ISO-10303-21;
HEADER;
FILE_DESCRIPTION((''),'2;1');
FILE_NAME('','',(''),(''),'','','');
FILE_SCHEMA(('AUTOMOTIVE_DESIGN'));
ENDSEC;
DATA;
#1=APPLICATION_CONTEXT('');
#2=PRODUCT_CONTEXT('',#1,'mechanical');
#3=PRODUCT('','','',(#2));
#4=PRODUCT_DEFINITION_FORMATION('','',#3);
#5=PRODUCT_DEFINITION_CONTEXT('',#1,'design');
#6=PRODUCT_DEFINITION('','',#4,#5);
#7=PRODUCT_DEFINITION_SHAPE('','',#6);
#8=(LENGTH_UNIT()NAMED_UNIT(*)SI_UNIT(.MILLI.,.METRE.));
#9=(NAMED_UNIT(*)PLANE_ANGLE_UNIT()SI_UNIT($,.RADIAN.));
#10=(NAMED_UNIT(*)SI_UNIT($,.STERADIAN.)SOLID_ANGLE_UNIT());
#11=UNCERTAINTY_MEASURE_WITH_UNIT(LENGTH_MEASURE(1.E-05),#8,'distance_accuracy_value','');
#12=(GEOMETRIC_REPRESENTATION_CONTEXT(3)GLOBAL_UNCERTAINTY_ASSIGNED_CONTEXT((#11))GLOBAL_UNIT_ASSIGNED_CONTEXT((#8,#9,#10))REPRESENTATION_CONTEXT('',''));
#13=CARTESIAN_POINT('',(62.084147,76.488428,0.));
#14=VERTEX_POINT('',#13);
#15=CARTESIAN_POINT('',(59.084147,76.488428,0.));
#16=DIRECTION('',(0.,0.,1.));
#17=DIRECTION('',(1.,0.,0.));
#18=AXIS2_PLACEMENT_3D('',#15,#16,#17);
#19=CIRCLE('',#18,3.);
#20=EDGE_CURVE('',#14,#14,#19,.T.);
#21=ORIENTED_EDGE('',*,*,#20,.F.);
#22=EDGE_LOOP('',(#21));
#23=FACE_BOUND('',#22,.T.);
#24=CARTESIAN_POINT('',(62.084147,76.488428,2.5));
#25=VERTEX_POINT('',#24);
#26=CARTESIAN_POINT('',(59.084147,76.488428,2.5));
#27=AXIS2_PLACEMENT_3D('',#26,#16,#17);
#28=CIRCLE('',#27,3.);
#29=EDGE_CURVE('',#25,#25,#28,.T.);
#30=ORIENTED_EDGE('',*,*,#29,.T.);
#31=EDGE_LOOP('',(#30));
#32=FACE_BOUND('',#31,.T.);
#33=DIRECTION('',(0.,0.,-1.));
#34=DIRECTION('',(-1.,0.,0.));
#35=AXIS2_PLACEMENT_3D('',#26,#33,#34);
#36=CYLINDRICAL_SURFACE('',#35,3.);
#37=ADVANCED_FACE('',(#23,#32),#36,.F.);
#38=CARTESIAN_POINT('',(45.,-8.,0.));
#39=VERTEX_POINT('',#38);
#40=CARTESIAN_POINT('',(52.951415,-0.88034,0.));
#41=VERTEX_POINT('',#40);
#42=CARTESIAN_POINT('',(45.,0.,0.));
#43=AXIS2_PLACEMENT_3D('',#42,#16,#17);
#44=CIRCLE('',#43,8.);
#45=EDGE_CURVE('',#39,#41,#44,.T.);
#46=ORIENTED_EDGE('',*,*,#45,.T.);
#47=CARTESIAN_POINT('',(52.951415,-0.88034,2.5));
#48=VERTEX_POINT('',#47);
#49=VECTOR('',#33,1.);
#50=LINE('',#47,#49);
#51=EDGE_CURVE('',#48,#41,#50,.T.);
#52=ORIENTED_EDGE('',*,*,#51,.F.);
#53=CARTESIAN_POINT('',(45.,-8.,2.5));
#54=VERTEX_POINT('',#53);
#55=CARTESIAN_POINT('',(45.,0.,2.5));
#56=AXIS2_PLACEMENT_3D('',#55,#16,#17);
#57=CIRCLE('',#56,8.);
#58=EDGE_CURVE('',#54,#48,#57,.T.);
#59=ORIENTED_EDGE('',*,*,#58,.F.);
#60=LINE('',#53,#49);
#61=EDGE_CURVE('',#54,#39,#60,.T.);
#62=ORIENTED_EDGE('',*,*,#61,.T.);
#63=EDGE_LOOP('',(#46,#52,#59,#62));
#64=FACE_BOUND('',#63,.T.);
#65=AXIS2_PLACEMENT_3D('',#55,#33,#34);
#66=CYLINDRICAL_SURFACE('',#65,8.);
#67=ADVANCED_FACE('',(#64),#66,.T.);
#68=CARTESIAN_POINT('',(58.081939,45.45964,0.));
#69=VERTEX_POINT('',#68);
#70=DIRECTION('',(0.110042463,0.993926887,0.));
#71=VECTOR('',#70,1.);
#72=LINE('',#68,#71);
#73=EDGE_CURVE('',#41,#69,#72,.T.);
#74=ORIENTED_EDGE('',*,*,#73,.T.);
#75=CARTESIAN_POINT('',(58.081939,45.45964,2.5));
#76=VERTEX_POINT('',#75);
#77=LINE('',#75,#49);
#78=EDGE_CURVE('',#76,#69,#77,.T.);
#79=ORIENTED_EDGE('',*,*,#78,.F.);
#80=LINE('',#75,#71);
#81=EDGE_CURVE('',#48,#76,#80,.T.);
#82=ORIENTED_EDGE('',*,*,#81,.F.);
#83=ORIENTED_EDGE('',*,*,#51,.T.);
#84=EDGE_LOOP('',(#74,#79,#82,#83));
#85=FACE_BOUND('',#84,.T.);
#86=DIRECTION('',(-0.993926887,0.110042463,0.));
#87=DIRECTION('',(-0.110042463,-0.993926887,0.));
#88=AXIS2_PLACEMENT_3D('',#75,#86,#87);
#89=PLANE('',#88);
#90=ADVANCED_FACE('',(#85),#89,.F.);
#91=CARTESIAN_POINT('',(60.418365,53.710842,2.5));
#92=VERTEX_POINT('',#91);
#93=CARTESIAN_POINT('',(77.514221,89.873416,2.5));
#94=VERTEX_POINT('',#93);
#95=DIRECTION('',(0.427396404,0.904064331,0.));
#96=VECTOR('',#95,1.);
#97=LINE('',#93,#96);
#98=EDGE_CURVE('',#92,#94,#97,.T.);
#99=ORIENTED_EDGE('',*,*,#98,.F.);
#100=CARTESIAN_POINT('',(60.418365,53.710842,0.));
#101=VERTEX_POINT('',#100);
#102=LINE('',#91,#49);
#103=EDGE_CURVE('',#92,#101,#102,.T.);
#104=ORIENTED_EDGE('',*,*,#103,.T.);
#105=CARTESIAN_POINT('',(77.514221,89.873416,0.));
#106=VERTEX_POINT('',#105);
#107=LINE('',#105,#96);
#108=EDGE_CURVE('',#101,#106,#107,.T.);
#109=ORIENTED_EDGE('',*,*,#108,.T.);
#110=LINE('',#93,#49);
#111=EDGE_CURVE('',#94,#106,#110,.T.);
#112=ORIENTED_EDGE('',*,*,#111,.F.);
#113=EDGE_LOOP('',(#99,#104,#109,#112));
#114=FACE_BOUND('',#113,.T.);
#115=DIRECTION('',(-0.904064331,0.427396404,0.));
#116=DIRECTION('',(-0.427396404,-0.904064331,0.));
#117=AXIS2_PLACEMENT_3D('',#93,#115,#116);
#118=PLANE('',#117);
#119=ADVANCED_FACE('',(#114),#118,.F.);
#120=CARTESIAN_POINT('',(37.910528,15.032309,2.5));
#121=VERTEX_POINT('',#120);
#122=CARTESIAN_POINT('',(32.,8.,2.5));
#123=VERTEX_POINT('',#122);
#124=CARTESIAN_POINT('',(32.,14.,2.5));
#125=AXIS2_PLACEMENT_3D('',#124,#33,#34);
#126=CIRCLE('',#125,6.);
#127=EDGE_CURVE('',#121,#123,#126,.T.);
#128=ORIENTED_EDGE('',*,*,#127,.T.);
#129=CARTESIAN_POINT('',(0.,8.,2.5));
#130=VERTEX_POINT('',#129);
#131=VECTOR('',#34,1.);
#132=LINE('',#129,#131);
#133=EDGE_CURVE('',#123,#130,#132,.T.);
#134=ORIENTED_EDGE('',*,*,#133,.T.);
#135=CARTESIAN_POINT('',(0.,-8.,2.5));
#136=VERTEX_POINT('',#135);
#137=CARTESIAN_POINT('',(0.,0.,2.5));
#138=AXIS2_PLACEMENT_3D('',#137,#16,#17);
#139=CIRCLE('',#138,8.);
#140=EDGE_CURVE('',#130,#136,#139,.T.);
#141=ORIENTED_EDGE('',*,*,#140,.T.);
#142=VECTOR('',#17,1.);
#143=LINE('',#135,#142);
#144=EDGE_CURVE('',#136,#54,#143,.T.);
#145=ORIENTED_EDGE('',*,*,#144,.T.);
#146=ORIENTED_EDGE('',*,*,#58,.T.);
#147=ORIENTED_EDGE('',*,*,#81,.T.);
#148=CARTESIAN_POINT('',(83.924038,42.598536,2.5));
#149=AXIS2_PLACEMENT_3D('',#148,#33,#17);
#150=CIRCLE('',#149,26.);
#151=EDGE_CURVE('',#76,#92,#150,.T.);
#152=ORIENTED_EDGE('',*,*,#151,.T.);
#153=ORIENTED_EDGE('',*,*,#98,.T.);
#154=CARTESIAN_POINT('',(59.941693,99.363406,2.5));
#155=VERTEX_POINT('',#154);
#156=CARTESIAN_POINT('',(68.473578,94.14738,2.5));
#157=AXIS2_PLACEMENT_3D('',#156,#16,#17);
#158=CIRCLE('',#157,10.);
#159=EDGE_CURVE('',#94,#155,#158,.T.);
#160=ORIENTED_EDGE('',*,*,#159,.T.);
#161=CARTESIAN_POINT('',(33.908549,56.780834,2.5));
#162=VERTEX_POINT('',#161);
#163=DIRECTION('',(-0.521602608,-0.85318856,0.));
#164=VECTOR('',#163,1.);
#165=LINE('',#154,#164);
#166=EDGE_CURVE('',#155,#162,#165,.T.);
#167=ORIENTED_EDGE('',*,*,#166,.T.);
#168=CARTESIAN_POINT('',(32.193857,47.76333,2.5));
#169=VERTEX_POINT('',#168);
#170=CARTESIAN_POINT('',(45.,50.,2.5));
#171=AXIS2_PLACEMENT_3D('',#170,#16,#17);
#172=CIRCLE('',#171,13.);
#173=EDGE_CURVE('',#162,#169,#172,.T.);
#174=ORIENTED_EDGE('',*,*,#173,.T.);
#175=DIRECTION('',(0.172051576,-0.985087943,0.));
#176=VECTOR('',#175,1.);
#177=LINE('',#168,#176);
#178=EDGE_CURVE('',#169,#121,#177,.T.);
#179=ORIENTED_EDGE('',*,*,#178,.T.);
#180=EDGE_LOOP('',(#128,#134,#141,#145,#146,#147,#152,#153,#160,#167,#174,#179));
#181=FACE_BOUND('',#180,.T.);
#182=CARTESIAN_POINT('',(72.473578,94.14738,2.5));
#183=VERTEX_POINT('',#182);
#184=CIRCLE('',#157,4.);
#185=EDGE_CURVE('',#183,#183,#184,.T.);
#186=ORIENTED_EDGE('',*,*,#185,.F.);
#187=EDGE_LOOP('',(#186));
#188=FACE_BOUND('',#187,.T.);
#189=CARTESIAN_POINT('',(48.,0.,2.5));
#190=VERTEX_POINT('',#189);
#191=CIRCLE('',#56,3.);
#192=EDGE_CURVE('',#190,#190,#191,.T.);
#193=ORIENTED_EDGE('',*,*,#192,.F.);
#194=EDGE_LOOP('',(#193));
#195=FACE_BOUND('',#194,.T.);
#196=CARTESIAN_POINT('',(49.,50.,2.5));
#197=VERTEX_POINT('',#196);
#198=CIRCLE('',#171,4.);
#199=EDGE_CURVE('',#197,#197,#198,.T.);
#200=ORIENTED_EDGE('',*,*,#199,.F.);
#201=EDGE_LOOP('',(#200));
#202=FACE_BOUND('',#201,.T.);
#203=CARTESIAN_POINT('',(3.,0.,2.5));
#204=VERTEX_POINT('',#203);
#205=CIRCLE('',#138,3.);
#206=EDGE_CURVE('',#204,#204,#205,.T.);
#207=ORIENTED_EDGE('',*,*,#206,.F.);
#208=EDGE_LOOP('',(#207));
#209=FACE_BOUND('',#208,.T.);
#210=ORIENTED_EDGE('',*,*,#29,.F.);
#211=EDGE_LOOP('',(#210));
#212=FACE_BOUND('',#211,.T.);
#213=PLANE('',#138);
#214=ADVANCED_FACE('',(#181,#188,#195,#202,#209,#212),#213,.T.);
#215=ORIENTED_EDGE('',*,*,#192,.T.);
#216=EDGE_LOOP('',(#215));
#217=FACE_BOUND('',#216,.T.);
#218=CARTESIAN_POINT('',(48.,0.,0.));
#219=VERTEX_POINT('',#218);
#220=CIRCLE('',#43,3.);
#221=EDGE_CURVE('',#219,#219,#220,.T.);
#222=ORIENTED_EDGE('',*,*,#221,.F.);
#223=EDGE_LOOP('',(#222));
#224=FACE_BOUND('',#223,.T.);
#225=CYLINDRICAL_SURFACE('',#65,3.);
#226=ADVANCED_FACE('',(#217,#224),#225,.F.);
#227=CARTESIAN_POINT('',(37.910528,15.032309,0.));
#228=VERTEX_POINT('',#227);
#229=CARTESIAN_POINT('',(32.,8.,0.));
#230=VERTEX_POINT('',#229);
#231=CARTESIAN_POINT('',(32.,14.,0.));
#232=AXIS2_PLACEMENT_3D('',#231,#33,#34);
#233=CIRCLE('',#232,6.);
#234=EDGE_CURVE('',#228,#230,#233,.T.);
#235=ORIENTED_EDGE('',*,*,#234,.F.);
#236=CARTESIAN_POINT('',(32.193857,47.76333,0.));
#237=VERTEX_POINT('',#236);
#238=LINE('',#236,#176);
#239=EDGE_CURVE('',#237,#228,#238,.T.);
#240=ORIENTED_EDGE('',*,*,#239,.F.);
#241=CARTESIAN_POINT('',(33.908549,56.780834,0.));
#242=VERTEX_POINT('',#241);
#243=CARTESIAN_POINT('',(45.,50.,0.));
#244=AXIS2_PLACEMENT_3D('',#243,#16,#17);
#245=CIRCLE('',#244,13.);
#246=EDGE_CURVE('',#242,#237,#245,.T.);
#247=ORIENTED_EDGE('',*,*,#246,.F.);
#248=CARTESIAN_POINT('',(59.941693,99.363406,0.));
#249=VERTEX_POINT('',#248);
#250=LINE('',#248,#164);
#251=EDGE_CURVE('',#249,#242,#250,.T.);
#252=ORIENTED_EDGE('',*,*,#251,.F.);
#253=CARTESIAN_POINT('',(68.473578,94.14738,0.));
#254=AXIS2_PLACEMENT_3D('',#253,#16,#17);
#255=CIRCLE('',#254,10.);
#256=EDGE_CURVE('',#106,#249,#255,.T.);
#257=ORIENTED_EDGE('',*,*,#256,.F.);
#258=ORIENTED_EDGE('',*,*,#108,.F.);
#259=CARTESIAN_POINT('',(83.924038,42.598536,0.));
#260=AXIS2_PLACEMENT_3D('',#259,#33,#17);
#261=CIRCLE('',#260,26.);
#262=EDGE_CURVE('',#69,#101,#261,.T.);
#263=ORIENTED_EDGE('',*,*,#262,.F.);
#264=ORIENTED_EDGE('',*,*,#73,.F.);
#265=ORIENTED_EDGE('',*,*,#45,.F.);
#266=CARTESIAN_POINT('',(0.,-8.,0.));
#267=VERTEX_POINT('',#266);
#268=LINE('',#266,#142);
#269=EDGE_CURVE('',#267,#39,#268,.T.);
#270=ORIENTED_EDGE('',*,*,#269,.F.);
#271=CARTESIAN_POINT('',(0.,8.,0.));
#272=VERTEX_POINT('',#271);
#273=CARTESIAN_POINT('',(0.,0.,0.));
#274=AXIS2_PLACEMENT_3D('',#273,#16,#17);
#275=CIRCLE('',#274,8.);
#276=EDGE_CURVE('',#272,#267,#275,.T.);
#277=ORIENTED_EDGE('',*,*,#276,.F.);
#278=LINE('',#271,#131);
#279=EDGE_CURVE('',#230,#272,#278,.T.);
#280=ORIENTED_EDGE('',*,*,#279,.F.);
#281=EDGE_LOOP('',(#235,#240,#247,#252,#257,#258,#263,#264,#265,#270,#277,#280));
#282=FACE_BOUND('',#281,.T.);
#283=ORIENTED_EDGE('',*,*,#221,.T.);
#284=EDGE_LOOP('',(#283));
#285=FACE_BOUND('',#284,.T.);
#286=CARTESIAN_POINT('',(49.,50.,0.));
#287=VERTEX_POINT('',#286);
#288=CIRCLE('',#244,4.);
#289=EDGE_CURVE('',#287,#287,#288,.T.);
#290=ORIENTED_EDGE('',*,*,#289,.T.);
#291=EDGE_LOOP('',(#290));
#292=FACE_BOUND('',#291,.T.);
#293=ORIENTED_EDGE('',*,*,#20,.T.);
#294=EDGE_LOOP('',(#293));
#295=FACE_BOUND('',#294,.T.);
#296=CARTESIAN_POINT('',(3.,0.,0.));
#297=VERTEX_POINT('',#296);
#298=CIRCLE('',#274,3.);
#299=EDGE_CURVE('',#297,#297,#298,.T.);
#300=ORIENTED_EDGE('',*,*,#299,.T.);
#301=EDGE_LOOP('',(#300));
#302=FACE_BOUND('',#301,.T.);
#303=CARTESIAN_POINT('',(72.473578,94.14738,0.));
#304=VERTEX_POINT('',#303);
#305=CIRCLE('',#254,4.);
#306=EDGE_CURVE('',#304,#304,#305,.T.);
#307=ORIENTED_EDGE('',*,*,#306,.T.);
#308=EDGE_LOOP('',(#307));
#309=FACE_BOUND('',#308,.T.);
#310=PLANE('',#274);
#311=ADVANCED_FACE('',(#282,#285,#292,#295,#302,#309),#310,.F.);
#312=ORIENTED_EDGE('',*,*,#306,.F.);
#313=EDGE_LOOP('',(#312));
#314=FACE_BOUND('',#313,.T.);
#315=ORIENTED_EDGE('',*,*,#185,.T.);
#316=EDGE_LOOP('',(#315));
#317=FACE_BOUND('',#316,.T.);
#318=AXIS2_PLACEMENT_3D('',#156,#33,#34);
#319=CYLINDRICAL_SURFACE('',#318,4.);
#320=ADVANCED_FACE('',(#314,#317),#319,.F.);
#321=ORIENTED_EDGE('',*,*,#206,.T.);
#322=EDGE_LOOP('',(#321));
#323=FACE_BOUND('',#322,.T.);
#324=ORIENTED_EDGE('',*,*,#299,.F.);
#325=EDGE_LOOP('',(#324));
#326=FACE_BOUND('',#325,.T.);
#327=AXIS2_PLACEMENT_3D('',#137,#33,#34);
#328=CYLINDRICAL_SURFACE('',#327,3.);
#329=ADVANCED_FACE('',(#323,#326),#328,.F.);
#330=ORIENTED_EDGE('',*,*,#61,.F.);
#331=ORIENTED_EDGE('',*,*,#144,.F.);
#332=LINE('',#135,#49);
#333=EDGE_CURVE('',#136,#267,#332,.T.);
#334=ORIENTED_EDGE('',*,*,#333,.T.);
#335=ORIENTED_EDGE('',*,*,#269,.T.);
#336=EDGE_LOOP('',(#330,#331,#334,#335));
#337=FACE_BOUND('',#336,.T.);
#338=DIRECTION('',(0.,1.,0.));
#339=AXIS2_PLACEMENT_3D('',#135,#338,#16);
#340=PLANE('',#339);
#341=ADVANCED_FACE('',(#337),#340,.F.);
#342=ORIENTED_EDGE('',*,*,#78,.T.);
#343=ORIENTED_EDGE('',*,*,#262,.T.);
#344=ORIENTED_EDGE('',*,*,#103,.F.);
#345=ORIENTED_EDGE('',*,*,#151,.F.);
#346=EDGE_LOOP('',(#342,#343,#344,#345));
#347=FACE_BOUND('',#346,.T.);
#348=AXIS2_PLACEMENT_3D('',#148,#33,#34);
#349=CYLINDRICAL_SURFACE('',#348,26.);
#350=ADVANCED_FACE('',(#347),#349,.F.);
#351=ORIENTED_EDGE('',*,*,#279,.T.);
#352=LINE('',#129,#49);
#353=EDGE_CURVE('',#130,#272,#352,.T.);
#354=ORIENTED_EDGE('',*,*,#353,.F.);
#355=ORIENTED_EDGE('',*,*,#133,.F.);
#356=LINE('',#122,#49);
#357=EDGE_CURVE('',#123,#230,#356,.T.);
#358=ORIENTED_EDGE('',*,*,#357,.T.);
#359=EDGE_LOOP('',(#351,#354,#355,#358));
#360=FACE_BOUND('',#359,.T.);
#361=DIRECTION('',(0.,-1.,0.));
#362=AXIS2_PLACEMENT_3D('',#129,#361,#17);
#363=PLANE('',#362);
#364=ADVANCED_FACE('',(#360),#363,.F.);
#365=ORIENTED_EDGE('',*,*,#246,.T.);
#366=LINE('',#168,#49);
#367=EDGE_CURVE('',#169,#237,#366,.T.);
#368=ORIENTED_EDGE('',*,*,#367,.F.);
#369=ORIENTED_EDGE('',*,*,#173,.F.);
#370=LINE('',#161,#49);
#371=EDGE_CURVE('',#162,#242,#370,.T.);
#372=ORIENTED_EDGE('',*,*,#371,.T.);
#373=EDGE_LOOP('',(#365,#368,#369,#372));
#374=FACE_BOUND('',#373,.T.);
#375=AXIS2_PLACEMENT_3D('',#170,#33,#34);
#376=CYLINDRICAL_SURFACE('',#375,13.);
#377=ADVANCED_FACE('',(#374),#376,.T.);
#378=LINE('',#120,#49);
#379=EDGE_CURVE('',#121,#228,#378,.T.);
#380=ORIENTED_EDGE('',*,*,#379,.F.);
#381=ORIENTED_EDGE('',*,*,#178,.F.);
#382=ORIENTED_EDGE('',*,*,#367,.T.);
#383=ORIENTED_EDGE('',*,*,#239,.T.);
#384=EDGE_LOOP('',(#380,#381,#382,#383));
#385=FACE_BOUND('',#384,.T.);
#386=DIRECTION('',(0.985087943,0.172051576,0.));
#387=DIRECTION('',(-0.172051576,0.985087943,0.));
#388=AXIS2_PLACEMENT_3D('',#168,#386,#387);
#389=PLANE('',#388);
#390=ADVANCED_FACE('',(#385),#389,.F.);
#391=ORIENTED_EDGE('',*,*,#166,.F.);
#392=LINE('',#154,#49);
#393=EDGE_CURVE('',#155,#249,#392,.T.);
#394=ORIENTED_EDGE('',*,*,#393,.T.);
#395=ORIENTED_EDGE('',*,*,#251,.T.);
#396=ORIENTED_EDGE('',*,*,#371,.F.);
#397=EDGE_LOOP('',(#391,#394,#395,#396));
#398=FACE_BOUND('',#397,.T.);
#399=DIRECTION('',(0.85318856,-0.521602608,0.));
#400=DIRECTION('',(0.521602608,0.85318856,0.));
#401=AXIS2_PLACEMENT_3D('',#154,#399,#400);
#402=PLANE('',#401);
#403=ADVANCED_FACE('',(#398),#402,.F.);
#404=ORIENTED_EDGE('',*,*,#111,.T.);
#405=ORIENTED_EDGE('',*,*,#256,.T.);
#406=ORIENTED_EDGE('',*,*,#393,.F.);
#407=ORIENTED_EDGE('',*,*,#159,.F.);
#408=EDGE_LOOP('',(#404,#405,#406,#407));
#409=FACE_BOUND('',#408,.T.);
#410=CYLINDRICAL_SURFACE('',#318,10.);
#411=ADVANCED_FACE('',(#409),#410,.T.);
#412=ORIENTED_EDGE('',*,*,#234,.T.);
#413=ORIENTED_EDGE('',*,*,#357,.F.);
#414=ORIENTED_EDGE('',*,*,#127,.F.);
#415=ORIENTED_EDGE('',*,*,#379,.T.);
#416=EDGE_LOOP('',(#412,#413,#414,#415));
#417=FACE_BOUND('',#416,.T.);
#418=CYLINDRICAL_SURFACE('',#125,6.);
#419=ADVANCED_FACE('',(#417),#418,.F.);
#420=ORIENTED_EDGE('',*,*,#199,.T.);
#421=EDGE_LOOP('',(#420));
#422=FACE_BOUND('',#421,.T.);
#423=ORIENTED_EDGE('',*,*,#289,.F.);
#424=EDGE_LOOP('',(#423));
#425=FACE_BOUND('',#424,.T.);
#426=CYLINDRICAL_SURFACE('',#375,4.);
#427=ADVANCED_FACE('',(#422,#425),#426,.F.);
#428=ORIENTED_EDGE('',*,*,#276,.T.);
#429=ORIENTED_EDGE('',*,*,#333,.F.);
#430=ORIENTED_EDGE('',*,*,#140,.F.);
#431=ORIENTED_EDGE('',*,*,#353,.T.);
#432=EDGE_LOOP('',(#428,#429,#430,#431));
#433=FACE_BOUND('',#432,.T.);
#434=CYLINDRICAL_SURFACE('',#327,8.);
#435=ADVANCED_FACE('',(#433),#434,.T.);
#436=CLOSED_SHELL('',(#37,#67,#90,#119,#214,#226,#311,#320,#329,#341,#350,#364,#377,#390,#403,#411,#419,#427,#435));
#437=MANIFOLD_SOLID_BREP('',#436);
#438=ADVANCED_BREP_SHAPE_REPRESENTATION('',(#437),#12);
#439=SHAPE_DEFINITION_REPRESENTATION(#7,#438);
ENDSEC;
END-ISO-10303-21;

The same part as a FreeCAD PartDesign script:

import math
import FreeCAD as App
import Part
import Sketcher
from FreeCAD import Vector
Q = App.Units.Quantity

doc = App.newDocument("Part")
body = doc.addObject("PartDesign::Body", "Body")

# Sketch on XY plane
sketch1 = doc.addObject("Sketcher::SketchObject", "Sketch")
body.addObject(sketch1)
sketch1.AttachmentSupport = (doc.XY_Plane, [""])
sketch1.MapMode = "FlatFace"
sketch1.addGeometry(Part.LineSegment(Vector(32, 8, 0), Vector(0, 8, 0)), False)
sketch1.addGeometry(Part.ArcOfCircle(Part.Circle(Vector(0, 0, 0), Vector(0, 0, 1), 8), math.radians(90), math.radians(270)), False)
sketch1.addGeometry(Part.LineSegment(Vector(0, -8, 0), Vector(45, -8, 0)), False)
sketch1.addGeometry(Part.ArcOfCircle(Part.Circle(Vector(45, 0, 0), Vector(0, 0, 1), 8), math.radians(-90), math.radians(-6)), False)
sketch1.addGeometry(Part.LineSegment(Vector(53, -0.9, 0), Vector(58.1, 45.5, 0)), False)
sketch1.addGeometry(Part.ArcOfCircle(Part.Circle(Vector(83.9, 42.6, 0), Vector(0, 0, 1), 26), math.radians(154.7), math.radians(173.68)), False)
sketch1.addGeometry(Part.LineSegment(Vector(60.4, 53.7, 0), Vector(77.5, 89.9, 0)), False)
sketch1.addGeometry(Part.ArcOfCircle(Part.Circle(Vector(68.5, 94.1, 0), Vector(0, 0, 1), 10), math.radians(-25), math.radians(149)), False)
sketch1.addGeometry(Part.LineSegment(Vector(59.9, 99.4, 0), Vector(33.9, 56.8, 0)), False)
sketch1.addGeometry(Part.ArcOfCircle(Part.Circle(Vector(45, 50, 0), Vector(0, 0, 1), 13), math.radians(149), math.radians(190)), False)
sketch1.addGeometry(Part.LineSegment(Vector(32.2, 47.8, 0), Vector(37.9, 15, 0)), False)
sketch1.addGeometry(Part.ArcOfCircle(Part.Circle(Vector(32, 14, 0), Vector(0, 0, 1), 6), math.radians(-90), math.radians(10)), False)
sketch1.addGeometry(Part.Circle(Vector(45, 0, 0), Vector(0, 0, 1), 3), False)
sketch1.addGeometry(Part.Circle(Vector(0, 0, 0), Vector(0, 0, 1), 3), False)
sketch1.addGeometry(Part.Circle(Vector(45, 50, 0), Vector(0, 0, 1), 4), False)
sketch1.addGeometry(Part.Circle(Vector(59.1, 76.5, 0), Vector(0, 0, 1), 3), False)
sketch1.addGeometry(Part.Circle(Vector(68.5, 94.1, 0), Vector(0, 0, 1), 4), False)
sketch1.addConstraint(Sketcher.Constraint("Tangent", 0, 2, 1, 1))
sketch1.addConstraint(Sketcher.Constraint("Tangent", 1, 2, 2, 1))
sketch1.addConstraint(Sketcher.Constraint("Tangent", 2, 2, 3, 1))
sketch1.addConstraint(Sketcher.Constraint("Tangent", 3, 2, 4, 1))
sketch1.addConstraint(Sketcher.Constraint("Tangent", 4, 2, 5, 2))
sketch1.addConstraint(Sketcher.Constraint("Tangent", 5, 1, 6, 1))
sketch1.addConstraint(Sketcher.Constraint("Tangent", 6, 2, 7, 1))
sketch1.addConstraint(Sketcher.Constraint("Tangent", 7, 2, 8, 1))
sketch1.addConstraint(Sketcher.Constraint("Tangent", 8, 2, 9, 1))
sketch1.addConstraint(Sketcher.Constraint("Tangent", 9, 2, 10, 1))
sketch1.addConstraint(Sketcher.Constraint("Tangent", 10, 2, 11, 2))
sketch1.addConstraint(Sketcher.Constraint("Tangent", 11, 1, 0, 1))
sketch1.addConstraint(Sketcher.Constraint("Horizontal", 0))
sketch1.addConstraint(Sketcher.Constraint("Horizontal", 2))
sketch1.addConstraint(Sketcher.Constraint("Coincident", 1, 3, -1, 1))
sketch1.addConstraint(Sketcher.Constraint("Coincident", 13, 3, -1, 1))
sketch1.addConstraint(Sketcher.Constraint("Coincident", 12, 3, 3, 3))
sketch1.addConstraint(Sketcher.Constraint("Coincident", 14, 3, 9, 3))
sketch1.addConstraint(Sketcher.Constraint("Coincident", 16, 3, 7, 3))
sketch1.addConstraint(Sketcher.Constraint("Equal", 1, 3))
sketch1.addConstraint(Sketcher.Constraint("Equal", 12, 13))
sketch1.addConstraint(Sketcher.Constraint("Equal", 13, 15))
sketch1.addConstraint(Sketcher.Constraint("Equal", 14, 16))
sketch1.addConstraint(Sketcher.Constraint("Vertical", 3, 3, 9, 3))
sketch1.addConstraint(Sketcher.Constraint("Diameter", 12, Q("6 mm")))
sketch1.addConstraint(Sketcher.Constraint("Diameter", 14, Q("8 mm")))
sketch1.addConstraint(Sketcher.Constraint("Radius", 1, Q("8 mm")))
sketch1.addConstraint(Sketcher.Constraint("Radius", 5, Q("26 mm")))
sketch1.addConstraint(Sketcher.Constraint("Radius", 7, Q("10 mm")))
sketch1.addConstraint(Sketcher.Constraint("Radius", 9, Q("13 mm")))
sketch1.addConstraint(Sketcher.Constraint("Radius", 11, Q("6 mm")))
sketch1.addConstraint(Sketcher.Constraint("DistanceX", 0, 2, 0, 1, Q("32 mm")))
sketch1.addConstraint(Sketcher.Constraint("DistanceX", 2, 1, 2, 2, Q("45 mm")))
sketch1.addConstraint(Sketcher.Constraint("Distance", 6, Q("40 mm")))
sketch1.addConstraint(Sketcher.Constraint("DistanceY", -1, 1, 9, 3, Q("50 mm")))
sketch1.addConstraint(Sketcher.Constraint("DistanceX", 4, 2, 5, 3, Q("25.842099 mm")))
sketch1.addConstraint(Sketcher.Constraint("DistanceX", 8, 2, 15, 3, Q("25.175598 mm")))
sketch1.addConstraint(Sketcher.Constraint("Distance", 8, Q("49.909919 mm")))
sketch1.addConstraint(Sketcher.Constraint("DistanceX", -1, 1, 7, 3, Q("68.473578 mm")))
sketch1.addConstraint(Sketcher.Constraint("DistanceY", 15, 3, 7, 3, Q("17.658952 mm")))
pad1 = doc.addObject("PartDesign::Pad", "Pad")
body.addObject(pad1)
pad1.Profile = sketch1
pad1.Length = 2.5

doc.recompute()
